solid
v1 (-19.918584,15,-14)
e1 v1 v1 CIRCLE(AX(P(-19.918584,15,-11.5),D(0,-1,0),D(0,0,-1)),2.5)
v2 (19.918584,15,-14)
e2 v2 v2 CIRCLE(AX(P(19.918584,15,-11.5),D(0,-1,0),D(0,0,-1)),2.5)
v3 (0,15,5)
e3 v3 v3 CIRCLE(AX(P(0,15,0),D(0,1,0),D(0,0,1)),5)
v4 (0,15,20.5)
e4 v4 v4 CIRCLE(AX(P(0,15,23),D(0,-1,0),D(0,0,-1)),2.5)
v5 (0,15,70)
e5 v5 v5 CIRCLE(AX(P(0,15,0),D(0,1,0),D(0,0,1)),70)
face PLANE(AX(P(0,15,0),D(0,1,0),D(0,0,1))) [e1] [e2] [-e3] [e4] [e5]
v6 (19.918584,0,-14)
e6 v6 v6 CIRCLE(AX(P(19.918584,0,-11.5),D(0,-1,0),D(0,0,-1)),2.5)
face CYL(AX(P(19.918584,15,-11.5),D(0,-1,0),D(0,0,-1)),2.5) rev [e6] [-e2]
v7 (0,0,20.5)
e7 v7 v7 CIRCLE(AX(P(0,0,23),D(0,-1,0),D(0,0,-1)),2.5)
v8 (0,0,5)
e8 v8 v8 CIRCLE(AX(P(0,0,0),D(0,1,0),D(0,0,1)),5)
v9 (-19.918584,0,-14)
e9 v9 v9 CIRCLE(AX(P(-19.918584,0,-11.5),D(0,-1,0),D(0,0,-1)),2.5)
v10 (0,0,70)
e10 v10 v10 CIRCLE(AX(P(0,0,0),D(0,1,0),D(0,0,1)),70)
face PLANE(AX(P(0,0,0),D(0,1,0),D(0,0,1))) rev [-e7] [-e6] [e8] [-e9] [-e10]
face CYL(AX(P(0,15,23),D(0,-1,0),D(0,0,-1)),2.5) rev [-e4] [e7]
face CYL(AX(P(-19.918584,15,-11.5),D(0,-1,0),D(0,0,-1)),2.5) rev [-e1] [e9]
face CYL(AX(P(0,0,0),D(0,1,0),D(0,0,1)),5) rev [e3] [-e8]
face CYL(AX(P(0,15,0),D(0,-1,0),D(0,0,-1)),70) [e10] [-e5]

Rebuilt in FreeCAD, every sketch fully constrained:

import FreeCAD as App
import Part
import Sketcher
from FreeCAD import Vector

doc = App.newDocument("Part")
body = doc.addObject("PartDesign::Body", "Body")

# Sketch on XZ plane
sketch1 = body.newObject("Sketcher::SketchObject", "Sketch")
sketch1.AttachmentSupport = (doc.getObject("XZ_Plane"), [""])
sketch1.MapMode = "FlatFace"
sketch1.addGeometry(Part.Circle(Vector(0, 0, 0), Vector(0, 0, 1), 70), False)
sketch1.addConstraint([
    Sketcher.Constraint("Coincident", 0, 3, -1, 1),
    Sketcher.Constraint("Diameter", 0, 140.0),
])
pad1 = body.newObject("PartDesign::Pad", "Pad")
pad1.Profile = sketch1
pad1.Length = 15
pad1.Reversed = True

# Sketch on XZ plane
sketch2 = body.newObject("Sketcher::SketchObject", "Sketch001")
sketch2.AttachmentSupport = (doc.getObject("XZ_Plane"), [""])
sketch2.MapMode = "FlatFace"
sketch2.AttachmentOffset = App.Placement(Vector(0, 0, -15), App.Rotation())
sketch2.addGeometry(Part.Circle(Vector(0, 0, 0), Vector(0, 0, 1), 5), False)
sketch2.addConstraint([
    Sketcher.Constraint("Coincident", 0, 3, -1, 1),
    Sketcher.Constraint("Diameter", 0, 10.0),
])
pocket1 = body.newObject("PartDesign::Pocket", "Pocket")
pocket1.Profile = sketch2
pocket1.Length = 15
pocket1.Reversed = True

# Sketch on XZ plane
sketch3 = body.newObject("Sketcher::SketchObject", "Sketch002")
sketch3.AttachmentSupport = (doc.getObject("XZ_Plane"), [""])
sketch3.MapMode = "FlatFace"
sketch3.addGeometry([
    Part.Circle(Vector(0, 23, 0), Vector(0, 0, 1), 2.5),
    Part.Circle(Vector(19.9, -11.5, 0), Vector(0, 0, 1), 2.5),
    Part.Circle(Vector(-19.9, -11.5, 0), Vector(0, 0, 1), 2.5),
], False)
sketch3.addConstraint([
    Sketcher.Constraint("Equal", 0, 1),
    Sketcher.Constraint("Equal", 1, 2),
    Sketcher.Constraint("Symmetric", 1, 3, 2, 3, -2),
    Sketcher.Constraint("PointOnObject", 0, 3, -2),
    Sketcher.Constraint("Diameter", 0, 5.0),
    Sketcher.Constraint("DistanceY", -1, 1, 0, 3, 23.0),
    Sketcher.Constraint("DistanceY", 1, 3, -1, 1, 11.5),
    Sketcher.Constraint("DistanceX", 2, 3, 1, 3, 39.837169),
])
pocket2 = body.newObject("PartDesign::Pocket", "Pocket001")
pocket2.Profile = sketch3
pocket2.Type = "ThroughAll"

doc.recompute()
